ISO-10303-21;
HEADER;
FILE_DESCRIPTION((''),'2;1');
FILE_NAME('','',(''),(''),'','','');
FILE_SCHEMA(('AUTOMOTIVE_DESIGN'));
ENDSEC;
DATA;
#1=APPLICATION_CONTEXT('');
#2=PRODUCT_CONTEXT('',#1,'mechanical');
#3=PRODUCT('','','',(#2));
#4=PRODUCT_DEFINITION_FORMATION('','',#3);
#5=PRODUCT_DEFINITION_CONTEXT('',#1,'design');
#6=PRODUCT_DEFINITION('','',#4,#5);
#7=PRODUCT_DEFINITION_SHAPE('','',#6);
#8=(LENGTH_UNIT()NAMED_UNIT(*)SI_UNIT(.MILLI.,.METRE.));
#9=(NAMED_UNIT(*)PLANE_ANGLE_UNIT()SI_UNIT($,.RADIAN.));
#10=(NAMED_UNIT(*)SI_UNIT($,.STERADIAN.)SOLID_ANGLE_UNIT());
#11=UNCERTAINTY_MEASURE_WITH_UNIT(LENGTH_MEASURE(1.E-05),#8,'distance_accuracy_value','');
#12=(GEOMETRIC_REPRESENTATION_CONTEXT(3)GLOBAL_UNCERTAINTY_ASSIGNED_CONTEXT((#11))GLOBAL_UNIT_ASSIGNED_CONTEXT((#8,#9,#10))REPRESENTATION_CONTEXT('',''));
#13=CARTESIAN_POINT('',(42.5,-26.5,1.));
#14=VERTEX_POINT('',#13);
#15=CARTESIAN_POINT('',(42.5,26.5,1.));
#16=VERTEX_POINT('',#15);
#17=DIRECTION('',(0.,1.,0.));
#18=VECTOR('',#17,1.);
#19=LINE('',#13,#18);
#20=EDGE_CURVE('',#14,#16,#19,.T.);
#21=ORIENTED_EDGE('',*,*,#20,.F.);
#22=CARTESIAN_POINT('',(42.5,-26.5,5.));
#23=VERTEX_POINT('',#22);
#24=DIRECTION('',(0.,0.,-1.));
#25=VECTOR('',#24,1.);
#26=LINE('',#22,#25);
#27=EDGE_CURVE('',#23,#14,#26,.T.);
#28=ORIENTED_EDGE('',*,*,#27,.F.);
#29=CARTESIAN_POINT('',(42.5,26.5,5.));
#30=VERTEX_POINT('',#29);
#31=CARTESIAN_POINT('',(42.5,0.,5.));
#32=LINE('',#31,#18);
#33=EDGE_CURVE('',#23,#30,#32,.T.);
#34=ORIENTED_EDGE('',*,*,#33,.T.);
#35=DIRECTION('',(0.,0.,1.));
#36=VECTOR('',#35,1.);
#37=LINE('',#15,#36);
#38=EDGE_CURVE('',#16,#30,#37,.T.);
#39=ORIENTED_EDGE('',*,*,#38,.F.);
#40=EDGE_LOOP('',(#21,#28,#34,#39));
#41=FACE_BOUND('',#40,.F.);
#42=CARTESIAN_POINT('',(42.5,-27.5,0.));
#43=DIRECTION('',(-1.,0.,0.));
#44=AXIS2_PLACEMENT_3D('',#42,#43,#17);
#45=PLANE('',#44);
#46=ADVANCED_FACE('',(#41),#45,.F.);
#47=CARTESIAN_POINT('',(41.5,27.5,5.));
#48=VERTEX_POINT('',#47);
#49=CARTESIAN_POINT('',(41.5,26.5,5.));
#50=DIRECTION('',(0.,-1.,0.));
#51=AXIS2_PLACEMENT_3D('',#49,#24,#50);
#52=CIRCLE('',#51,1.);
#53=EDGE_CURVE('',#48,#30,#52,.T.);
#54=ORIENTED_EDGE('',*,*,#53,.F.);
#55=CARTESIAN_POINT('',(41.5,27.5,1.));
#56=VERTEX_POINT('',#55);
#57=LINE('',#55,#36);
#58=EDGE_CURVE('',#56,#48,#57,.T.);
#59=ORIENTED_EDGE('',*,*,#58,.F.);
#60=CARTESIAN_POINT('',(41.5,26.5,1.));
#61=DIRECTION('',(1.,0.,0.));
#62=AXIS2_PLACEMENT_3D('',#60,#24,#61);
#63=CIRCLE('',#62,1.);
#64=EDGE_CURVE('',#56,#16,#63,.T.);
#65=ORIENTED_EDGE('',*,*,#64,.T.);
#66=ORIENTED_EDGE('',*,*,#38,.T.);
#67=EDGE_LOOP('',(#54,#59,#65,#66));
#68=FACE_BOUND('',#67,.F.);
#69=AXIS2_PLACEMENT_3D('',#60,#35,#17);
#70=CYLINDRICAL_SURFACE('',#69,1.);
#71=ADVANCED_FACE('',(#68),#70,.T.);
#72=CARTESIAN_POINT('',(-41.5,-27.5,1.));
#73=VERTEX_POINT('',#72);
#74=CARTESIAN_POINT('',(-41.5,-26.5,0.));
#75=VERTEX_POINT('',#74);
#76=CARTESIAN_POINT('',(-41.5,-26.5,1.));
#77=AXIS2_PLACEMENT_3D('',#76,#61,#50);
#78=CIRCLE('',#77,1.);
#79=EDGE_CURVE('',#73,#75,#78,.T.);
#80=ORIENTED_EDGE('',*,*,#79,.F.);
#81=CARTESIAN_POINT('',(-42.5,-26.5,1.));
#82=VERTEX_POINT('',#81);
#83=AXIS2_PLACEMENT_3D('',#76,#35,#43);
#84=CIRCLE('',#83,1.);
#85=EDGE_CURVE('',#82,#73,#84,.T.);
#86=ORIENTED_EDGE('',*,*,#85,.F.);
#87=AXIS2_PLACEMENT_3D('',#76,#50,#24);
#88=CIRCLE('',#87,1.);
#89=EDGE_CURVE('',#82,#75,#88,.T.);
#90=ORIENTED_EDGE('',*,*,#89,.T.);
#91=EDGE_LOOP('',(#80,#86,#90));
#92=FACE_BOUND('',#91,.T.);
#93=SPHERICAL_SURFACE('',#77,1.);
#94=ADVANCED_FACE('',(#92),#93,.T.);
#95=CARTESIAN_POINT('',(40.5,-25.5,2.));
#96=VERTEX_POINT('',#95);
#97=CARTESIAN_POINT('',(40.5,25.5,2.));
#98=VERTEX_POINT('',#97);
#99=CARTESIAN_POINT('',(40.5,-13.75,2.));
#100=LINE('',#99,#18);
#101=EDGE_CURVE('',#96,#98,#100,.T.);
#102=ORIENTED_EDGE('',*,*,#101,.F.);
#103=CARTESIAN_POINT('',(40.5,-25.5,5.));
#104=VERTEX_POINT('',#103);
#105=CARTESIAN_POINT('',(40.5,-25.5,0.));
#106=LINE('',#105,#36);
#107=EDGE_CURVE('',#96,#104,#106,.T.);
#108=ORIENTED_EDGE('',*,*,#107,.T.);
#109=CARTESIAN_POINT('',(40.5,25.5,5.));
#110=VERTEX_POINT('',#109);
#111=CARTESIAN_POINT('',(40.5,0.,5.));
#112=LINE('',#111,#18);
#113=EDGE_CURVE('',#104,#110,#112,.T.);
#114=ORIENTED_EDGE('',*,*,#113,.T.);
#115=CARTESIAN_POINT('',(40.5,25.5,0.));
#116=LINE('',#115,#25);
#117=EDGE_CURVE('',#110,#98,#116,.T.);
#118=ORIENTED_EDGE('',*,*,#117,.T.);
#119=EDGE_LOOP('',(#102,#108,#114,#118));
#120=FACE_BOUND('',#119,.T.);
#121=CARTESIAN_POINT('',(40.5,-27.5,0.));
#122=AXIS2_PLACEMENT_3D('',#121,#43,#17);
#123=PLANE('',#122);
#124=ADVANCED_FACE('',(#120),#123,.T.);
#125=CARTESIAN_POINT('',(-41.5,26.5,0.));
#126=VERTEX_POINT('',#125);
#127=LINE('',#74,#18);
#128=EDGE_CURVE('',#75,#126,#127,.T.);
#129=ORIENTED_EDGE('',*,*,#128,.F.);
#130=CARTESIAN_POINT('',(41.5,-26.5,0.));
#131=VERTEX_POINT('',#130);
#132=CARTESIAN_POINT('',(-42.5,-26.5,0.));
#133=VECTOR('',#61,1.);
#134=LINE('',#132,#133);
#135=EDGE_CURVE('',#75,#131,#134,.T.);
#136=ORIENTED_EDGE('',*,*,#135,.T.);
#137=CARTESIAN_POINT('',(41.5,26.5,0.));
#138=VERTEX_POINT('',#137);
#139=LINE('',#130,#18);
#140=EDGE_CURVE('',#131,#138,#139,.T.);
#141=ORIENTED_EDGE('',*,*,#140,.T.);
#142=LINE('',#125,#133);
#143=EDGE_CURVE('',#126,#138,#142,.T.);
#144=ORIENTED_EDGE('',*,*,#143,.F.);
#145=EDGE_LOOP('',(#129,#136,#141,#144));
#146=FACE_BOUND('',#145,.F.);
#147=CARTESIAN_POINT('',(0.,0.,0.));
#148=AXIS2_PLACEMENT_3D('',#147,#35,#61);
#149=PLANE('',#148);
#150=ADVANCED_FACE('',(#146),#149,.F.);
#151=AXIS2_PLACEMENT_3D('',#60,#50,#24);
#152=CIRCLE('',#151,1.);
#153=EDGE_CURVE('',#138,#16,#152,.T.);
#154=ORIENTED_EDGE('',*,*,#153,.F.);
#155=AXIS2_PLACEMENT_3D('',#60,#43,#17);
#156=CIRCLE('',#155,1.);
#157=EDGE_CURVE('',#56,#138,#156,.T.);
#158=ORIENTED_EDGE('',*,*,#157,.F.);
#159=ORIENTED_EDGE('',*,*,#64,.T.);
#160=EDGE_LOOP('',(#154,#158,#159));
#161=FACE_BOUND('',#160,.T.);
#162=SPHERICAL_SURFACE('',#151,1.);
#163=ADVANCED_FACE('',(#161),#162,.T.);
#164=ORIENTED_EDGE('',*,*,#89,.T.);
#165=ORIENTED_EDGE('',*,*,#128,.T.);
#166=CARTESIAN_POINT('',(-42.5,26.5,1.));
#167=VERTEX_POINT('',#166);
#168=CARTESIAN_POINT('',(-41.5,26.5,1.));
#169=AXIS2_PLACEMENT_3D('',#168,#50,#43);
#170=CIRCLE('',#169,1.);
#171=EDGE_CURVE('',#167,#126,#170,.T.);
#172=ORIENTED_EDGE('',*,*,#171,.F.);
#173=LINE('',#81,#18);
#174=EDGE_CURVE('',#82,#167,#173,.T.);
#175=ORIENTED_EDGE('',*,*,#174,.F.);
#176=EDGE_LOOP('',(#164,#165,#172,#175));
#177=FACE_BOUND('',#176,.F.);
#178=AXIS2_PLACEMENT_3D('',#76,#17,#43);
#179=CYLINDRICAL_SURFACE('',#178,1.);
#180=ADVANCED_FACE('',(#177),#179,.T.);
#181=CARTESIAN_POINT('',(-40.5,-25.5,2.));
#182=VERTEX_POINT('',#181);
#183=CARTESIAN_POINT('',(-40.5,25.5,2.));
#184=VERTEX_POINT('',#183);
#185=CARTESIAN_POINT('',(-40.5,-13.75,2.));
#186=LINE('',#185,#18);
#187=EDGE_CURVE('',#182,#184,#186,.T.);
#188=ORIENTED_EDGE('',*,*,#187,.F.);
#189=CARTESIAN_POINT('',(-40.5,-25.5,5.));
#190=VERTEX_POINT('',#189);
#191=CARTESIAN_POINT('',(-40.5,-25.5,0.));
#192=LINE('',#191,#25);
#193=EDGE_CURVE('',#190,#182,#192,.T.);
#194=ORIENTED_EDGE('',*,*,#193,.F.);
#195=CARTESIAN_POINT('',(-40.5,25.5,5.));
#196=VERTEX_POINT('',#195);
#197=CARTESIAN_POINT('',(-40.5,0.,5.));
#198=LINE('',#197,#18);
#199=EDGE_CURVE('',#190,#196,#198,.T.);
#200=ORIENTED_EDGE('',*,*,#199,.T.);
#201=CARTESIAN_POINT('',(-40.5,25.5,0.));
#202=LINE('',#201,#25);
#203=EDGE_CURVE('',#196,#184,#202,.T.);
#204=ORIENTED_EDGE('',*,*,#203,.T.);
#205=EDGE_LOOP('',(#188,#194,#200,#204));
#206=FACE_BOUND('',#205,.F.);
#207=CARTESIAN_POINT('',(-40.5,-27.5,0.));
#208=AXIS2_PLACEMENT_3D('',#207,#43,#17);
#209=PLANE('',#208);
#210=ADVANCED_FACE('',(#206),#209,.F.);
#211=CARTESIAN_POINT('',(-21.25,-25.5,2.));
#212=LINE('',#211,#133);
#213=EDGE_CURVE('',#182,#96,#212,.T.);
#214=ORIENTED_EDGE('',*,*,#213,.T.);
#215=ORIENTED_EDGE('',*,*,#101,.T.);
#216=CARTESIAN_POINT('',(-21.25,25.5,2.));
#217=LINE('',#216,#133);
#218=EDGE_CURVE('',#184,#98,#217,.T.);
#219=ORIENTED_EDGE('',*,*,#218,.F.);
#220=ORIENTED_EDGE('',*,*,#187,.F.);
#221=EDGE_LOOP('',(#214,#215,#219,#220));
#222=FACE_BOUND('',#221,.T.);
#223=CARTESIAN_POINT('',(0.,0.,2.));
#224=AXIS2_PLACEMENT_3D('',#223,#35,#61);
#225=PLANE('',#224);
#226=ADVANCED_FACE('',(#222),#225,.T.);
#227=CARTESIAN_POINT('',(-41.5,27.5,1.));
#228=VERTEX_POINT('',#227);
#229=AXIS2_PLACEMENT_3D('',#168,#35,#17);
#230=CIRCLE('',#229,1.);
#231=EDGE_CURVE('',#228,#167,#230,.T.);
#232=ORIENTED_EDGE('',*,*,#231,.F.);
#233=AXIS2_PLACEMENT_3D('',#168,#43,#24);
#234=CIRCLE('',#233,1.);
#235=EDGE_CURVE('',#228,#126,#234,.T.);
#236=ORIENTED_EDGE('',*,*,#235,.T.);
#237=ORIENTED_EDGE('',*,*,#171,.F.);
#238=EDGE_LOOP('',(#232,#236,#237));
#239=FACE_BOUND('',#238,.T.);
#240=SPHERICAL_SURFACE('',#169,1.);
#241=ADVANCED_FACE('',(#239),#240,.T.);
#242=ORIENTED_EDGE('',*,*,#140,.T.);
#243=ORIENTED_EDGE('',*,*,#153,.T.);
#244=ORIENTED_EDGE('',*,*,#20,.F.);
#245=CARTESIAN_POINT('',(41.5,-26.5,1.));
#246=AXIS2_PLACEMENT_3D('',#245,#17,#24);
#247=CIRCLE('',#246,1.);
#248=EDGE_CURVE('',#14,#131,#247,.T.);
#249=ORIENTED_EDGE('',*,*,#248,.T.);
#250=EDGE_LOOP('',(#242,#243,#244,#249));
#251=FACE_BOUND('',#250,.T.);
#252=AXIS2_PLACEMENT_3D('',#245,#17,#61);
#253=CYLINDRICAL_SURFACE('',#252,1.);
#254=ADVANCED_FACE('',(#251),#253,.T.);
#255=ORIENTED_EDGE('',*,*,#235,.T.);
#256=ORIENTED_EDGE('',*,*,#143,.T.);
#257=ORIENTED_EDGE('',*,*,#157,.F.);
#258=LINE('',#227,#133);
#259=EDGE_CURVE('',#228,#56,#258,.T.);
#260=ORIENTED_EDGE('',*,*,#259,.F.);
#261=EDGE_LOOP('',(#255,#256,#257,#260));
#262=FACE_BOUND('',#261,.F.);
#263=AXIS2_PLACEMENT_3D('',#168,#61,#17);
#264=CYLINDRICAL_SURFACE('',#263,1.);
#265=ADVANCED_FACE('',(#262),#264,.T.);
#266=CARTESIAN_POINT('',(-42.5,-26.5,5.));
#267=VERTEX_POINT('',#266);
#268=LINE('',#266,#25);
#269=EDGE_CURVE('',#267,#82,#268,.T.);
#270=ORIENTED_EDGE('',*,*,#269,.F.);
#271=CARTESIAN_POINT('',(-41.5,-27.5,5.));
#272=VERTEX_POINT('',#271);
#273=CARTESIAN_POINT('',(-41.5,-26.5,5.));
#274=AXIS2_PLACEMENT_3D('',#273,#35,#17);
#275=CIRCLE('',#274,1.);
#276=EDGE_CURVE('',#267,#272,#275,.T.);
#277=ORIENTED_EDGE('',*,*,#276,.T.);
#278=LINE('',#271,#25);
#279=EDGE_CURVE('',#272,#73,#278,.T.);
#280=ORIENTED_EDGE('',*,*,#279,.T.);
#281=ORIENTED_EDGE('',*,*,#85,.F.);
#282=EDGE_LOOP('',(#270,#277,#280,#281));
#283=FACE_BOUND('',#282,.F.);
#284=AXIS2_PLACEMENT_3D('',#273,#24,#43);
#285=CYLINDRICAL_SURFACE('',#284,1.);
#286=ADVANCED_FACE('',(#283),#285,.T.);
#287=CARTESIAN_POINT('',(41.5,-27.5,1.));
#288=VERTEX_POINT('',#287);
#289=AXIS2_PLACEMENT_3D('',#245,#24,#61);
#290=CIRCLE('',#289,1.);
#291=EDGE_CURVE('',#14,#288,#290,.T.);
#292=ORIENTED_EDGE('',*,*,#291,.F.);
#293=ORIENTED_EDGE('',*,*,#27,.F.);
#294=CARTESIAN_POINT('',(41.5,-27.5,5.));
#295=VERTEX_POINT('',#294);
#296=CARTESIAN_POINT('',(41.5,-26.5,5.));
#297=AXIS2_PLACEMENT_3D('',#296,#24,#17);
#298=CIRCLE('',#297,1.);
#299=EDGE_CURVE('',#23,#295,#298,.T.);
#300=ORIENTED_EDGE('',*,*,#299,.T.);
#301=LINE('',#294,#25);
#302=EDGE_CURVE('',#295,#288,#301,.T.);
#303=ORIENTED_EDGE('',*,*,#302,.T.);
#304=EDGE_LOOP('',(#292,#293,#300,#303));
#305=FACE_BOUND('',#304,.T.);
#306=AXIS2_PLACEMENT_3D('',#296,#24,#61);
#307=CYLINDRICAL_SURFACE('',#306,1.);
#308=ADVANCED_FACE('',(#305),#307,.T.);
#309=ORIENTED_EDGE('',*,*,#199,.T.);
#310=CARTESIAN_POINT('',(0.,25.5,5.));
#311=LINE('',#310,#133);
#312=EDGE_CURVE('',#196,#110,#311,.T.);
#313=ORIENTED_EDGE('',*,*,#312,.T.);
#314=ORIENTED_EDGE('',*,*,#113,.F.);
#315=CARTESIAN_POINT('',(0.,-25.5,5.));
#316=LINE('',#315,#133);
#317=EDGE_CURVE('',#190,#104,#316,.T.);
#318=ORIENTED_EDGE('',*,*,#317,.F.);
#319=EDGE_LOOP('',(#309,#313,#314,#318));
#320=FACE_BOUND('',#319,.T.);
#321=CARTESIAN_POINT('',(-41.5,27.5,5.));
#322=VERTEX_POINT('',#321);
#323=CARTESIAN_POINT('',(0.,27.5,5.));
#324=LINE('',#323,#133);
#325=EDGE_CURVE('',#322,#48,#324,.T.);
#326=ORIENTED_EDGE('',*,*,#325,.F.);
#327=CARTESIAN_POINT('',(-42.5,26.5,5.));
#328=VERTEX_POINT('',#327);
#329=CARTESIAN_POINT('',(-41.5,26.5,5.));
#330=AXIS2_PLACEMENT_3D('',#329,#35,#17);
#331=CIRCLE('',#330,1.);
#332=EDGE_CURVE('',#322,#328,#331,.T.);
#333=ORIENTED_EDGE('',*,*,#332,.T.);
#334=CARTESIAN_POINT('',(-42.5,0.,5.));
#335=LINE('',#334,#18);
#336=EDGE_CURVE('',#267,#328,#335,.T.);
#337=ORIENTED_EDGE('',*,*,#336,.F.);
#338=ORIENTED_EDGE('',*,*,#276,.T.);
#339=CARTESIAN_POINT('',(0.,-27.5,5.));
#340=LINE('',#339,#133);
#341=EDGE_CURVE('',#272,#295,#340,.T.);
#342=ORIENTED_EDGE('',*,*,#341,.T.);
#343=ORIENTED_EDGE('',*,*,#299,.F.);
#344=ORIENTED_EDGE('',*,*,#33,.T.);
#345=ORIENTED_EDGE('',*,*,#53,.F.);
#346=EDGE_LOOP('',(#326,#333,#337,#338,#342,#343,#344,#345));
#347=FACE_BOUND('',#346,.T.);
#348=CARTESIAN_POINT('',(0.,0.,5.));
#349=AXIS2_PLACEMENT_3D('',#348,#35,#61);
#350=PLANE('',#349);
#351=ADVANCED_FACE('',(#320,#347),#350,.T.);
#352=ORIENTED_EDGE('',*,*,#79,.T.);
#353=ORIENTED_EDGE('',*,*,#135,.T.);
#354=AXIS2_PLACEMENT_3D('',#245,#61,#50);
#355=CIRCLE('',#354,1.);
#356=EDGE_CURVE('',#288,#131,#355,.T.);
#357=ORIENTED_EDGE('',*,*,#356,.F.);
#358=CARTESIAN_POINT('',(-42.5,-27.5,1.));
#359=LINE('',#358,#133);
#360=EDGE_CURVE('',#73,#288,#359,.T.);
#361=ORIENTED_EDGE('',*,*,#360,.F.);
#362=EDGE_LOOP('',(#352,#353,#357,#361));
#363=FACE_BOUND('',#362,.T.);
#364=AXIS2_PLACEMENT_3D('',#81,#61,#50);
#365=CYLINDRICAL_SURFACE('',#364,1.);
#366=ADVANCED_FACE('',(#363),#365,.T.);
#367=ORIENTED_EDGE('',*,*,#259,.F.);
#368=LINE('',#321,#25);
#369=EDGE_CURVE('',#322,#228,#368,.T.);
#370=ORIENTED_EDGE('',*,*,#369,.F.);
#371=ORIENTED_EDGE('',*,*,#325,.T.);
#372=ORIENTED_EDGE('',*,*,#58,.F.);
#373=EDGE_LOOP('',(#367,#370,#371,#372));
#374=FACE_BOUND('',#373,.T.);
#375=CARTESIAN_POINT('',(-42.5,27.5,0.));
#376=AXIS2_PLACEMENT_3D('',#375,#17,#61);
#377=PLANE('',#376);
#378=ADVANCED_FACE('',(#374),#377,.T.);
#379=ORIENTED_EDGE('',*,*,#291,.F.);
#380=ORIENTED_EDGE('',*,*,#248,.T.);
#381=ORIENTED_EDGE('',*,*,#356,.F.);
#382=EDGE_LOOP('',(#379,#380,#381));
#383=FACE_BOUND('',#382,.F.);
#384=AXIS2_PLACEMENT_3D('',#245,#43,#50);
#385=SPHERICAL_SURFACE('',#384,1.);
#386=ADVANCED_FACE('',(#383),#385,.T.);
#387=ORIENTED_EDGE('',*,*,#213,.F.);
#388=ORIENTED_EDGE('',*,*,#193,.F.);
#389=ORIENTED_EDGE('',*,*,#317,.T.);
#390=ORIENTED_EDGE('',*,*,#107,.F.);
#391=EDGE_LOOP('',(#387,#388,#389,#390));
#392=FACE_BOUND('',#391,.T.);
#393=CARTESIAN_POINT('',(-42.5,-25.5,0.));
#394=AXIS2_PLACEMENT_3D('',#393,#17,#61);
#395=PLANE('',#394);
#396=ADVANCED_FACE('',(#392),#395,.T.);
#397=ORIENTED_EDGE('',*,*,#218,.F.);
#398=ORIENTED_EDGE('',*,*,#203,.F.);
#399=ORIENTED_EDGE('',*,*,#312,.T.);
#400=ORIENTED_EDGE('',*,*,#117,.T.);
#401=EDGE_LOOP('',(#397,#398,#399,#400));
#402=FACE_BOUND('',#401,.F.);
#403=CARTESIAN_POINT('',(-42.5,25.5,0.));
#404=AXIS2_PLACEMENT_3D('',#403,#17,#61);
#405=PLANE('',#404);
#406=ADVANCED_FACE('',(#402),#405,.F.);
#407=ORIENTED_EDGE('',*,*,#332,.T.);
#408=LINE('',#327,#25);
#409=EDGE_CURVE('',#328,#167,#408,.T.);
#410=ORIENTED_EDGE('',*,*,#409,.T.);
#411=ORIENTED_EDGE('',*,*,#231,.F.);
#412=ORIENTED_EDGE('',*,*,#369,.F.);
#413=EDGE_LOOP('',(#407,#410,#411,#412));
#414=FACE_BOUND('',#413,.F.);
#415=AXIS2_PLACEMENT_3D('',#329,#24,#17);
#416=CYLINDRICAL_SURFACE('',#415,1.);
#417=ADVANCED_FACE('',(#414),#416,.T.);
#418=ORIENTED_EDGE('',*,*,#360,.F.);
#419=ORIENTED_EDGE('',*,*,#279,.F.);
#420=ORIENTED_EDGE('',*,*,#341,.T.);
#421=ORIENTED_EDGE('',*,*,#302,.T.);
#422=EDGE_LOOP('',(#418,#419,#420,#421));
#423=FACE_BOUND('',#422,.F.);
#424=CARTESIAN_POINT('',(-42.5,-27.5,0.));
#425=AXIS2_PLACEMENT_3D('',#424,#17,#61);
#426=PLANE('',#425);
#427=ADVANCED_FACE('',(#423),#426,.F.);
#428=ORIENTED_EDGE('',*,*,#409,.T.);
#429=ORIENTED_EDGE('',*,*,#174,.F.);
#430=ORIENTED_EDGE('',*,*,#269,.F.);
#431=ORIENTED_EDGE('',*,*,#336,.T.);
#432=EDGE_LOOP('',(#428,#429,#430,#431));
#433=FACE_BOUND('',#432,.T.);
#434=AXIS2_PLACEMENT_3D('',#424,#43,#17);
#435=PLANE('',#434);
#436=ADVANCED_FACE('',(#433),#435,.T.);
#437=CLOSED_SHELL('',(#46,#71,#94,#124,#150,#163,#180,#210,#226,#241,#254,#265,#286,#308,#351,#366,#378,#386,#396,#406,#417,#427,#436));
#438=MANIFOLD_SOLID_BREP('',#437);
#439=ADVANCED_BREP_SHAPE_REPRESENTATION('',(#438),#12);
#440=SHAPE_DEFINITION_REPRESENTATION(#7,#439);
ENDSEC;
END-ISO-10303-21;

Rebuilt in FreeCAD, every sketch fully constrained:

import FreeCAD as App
import Part
import Sketcher
Q = App.Units.Quantity


def edges_at(feature, points):
    """Names of the edges that pass closest to the given points."""
    edges = feature.Shape.Edges
    near = lambda p: min(range(len(edges)), key=lambda i: edges[i].distToShape(Part.Vertex(*p))[0])
    return sorted({f"Edge{near(p) + 1}" for p in points})


def faces_at(feature, points):
    """Names of the faces that lie closest to the given points."""
    faces = feature.Shape.Faces
    near = lambda p: min(range(len(faces)), key=lambda i: faces[i].distToShape(Part.Vertex(*p))[0])
    return sorted({f"Face{near(p) + 1}" for p in points})


def add_polygon(sketch, points):
    """Adds a closed chain of lines whose ends are joined by coincident constraints."""
    first, n = sketch.GeometryCount, len(points)
    for a, b in zip(points, points[1:] + points[:1]):
        sketch.addGeometry(Part.LineSegment(App.Vector(*a, 0), App.Vector(*b, 0)), False)
    for i in range(n):
        sketch.addConstraint(Sketcher.Constraint("Coincident", first + i, 2, first + (i + 1) % n, 1))

doc = App.newDocument("Part")
body = doc.addObject("PartDesign::Body", "Body")

sketch1 = doc.addObject("Sketcher::SketchObject", "Sketch")
body.addObject(sketch1)
sketch1.AttachmentSupport = (doc.XY_Plane, [""])
sketch1.MapMode = "FlatFace"
add_polygon(sketch1, [(-42.5, 27.5), (-42.5, -27.5), (42.5, -27.5), (42.5, 27.5)])
sketch1.addConstraint([
    Sketcher.Constraint("Vertical", 0),
    Sketcher.Constraint("Horizontal", 1),
    Sketcher.Constraint("Vertical", 2),
    Sketcher.Constraint("Horizontal", 3),
    Sketcher.Constraint("Symmetric", 0, 2, 2, 2, -1, 1),
    Sketcher.Constraint("DistanceX", 1, 1, 1, 2, Q("85 mm")),
    Sketcher.Constraint("DistanceY", 0, 2, 0, 1, Q("55 mm")),
])
pad1 = doc.addObject("PartDesign::Pad", "Pad")
body.addObject(pad1)
pad1.Profile = sketch1
pad1.Length = 5
doc.recompute()

thickness = doc.addObject("PartDesign::Thickness", "Thickness")
body.addObject(thickness)
thickness.Base = (pad1, faces_at(pad1, [(0, 0, 5)]))
thickness.Value = 2
thickness.Reversed = True
thickness.Join = "Arc"
doc.recompute()

fillet = doc.addObject("PartDesign::Fillet", "Fillet")
body.addObject(fillet)
fillet.Base = (thickness, edges_at(thickness, [(0, -27.5, 0)]))
fillet.Radius = 1
doc.recompute()

fillet2 = doc.addObject("PartDesign::Fillet", "Fillet001")
body.addObject(fillet2)
fillet2.Base = (fillet, edges_at(fillet, [(-42.5, 0.5, 0)]))
fillet2.Radius = 1
doc.recompute()

fillet3 = doc.addObject("PartDesign::Fillet", "Fillet002")
body.addObject(fillet3)
fillet3.Base = (fillet2, edges_at(fillet2, [(42.5, 0.5, 0)]))
fillet3.Radius = 1
doc.recompute()

fillet4 = doc.addObject("PartDesign::Fillet", "Fillet003")
body.addObject(fillet4)
fillet4.Base = (fillet3, edges_at(fillet3, [(0, 27.5, 0)]))
fillet4.Radius = 1

doc.recompute()
